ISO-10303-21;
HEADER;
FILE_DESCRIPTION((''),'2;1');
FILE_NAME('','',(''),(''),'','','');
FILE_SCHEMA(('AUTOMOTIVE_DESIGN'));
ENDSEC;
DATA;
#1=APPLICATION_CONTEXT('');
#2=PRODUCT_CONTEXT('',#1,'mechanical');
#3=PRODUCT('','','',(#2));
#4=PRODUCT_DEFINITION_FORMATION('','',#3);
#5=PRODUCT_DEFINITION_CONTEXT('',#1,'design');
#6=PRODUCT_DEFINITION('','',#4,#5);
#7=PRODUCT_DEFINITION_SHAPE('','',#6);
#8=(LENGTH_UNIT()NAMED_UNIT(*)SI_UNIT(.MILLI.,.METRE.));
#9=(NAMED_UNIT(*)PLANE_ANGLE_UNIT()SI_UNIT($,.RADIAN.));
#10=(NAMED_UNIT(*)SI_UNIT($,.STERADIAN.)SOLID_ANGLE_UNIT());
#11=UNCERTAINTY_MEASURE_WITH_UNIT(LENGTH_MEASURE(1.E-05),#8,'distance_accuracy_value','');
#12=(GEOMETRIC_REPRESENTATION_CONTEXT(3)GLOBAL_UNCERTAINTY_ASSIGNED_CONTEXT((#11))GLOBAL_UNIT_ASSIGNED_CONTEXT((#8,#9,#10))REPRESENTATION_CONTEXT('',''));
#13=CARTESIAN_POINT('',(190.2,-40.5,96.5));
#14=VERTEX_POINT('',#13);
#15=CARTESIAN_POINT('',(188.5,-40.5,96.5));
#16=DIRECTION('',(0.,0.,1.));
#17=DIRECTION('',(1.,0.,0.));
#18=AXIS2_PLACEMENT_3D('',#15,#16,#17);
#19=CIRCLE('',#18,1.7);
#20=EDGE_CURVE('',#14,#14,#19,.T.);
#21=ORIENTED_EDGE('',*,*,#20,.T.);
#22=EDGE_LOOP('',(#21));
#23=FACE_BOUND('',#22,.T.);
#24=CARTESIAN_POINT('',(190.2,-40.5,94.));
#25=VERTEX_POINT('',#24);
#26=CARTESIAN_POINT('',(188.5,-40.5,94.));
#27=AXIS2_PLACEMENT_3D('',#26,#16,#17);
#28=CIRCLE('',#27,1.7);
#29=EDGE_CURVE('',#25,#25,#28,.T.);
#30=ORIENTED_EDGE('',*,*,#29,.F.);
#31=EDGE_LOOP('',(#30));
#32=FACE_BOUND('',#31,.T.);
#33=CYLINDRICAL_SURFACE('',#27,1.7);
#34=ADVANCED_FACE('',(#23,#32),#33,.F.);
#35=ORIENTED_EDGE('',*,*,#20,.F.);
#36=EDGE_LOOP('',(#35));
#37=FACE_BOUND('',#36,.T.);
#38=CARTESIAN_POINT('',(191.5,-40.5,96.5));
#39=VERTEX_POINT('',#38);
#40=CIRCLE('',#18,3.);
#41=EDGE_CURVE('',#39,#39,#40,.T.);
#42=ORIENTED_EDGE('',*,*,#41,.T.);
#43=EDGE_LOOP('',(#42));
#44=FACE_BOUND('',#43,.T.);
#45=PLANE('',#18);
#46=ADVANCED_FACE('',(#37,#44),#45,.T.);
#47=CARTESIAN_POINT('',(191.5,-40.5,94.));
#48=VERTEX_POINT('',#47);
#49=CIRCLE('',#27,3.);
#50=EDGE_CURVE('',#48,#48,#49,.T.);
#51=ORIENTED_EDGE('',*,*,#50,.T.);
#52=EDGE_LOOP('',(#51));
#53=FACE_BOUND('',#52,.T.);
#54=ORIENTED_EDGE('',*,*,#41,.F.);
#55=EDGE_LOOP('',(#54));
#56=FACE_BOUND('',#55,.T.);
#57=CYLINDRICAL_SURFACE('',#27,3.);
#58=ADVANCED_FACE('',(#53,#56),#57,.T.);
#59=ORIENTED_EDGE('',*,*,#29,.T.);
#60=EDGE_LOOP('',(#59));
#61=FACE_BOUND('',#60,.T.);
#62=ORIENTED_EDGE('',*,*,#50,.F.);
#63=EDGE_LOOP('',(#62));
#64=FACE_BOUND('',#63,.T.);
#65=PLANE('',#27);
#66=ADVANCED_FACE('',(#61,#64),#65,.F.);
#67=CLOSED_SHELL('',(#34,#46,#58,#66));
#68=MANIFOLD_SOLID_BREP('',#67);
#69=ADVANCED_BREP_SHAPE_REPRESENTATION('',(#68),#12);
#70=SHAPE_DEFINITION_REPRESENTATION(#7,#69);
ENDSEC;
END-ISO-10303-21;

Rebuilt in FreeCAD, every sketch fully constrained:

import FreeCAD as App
import Part
import Sketcher
Q = App.Units.Quantity

doc = App.newDocument("Part")
params = doc.addObject("Spreadsheet::Sheet", "Params")
for row, (alias, value) in enumerate([
    ("sketch1_diameter", "6 mm"),
    ("sketch1_diameter2", "3.4 mm"),
    ("pad1_length", "2.5 mm"),
], start=1):
    params.set(f"A{row}", alias)
    params.set(f"B{row}", "=" + value)
    params.setAlias(f"B{row}", alias)

body = doc.addObject("PartDesign::Body", "Body")

# Sketch on XY plane
sketch1 = body.newObject("Sketcher::SketchObject", "Sketch")
sketch1.AttachmentSupport = (doc.getObject("XY_Plane"), [""])
sketch1.MapMode = "FlatFace"
sketch1.AttachmentOffset = App.Placement(App.Vector(0, 0, 96.5), App.Rotation())
sketch1.addGeometry([
    Part.Circle(App.Vector(188.5, -40.5, 0), App.Vector(0, 0, 1), 3),
    Part.Circle(App.Vector(188.5, -40.5, 0), App.Vector(0, 0, 1), 1.7),
], False)
sketch1.addConstraint([
    Sketcher.Constraint("Coincident", 1, 3, 0, 3),
    Sketcher.Constraint("Diameter", 0, Q("6 mm")),
    Sketcher.Constraint("Diameter", 1, Q("3.4 mm")),
    Sketcher.Constraint("DistanceX", -1, 1, 0, 3, Q("188.5 mm")),
    Sketcher.Constraint("DistanceY", 0, 3, -1, 1, Q("40.5 mm")),
])
sketch1.setExpression("Constraints[1]", "Params.sketch1_diameter")
sketch1.setExpression("Constraints[2]", "Params.sketch1_diameter2")
pad1 = body.newObject("PartDesign::Pad", "Pad")
pad1.Profile = sketch1
pad1.setExpression("Length", "Params.pad1_length")
pad1.Reversed = True

doc.recompute()
